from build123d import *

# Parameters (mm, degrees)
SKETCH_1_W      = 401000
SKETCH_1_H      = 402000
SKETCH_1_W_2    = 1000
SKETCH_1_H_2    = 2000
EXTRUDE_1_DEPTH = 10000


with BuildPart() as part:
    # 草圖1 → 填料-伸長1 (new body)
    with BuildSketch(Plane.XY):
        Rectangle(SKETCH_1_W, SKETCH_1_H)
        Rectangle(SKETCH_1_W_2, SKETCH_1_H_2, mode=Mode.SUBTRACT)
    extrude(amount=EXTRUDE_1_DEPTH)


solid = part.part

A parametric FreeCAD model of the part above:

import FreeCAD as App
import Part
import Sketcher

V = App.Vector

doc = App.newDocument("Part")
body = doc.addObject("PartDesign::Body", "Body")

sketch1 = body.newObject("Sketcher::SketchObject", "Sketch")
sketch1.AttachmentSupport = (doc.getObject("XY_Plane"), [""])
sketch1.MapMode = "FlatFace"
sketch1.addGeometry(Part.LineSegment(V(-200500, 201000, 0), V(-200500, -201000, 0)), False)
sketch1.addGeometry(Part.LineSegment(V(-200500, -201000, 0), V(200500, -201000, 0)), False)
sketch1.addGeometry(Part.LineSegment(V(200500, -201000, 0), V(200500, 201000, 0)), False)
sketch1.addGeometry(Part.LineSegment(V(200500, 201000, 0), V(-200500, 201000, 0)), False)
sketch1.addGeometry(Part.LineSegment(V(500, -1000, 0), V(-500, -1000, 0)), False)
sketch1.addGeometry(Part.LineSegment(V(-500, -1000, 0), V(-500, 1000, 0)), False)
sketch1.addGeometry(Part.LineSegment(V(-500, 1000, 0), V(500, 1000, 0)), False)
sketch1.addGeometry(Part.LineSegment(V(500, 1000, 0), V(500, -1000, 0)), False)
sketch1.addConstraint(Sketcher.Constraint("Coincident", 0, 2, 1, 1))
sketch1.addConstraint(Sketcher.Constraint("Coincident", 1, 2, 2, 1))
sketch1.addConstraint(Sketcher.Constraint("Coincident", 2, 2, 3, 1))
sketch1.addConstraint(Sketcher.Constraint("Coincident", 3, 2, 0, 1))
sketch1.addConstraint(Sketcher.Constraint("Coincident", 4, 2, 5, 1))
sketch1.addConstraint(Sketcher.Constraint("Coincident", 5, 2, 6, 1))
sketch1.addConstraint(Sketcher.Constraint("Coincident", 6, 2, 7, 1))
sketch1.addConstraint(Sketcher.Constraint("Coincident", 7, 2, 4, 1))
sketch1.addConstraint(Sketcher.Constraint("Vertical", 0))
sketch1.addConstraint(Sketcher.Constraint("Horizontal", 1))
sketch1.addConstraint(Sketcher.Constraint("Vertical", 2))
sketch1.addConstraint(Sketcher.Constraint("Horizontal", 3))
sketch1.addConstraint(Sketcher.Constraint("Horizontal", 4))
sketch1.addConstraint(Sketcher.Constraint("Vertical", 5))
sketch1.addConstraint(Sketcher.Constraint("Horizontal", 6))
sketch1.addConstraint(Sketcher.Constraint("Vertical", 7))
sketch1.addConstraint(Sketcher.Constraint("Symmetric", 0, 2, 2, 2, -1, 1))
sketch1.addConstraint(Sketcher.Constraint("Symmetric", 4, 2, 6, 2, -1, 1))
sketch1.addConstraint(Sketcher.Constraint("DistanceX", 1, 1, 1, 2, 401000.0))
sketch1.addConstraint(Sketcher.Constraint("DistanceX", 4, 2, 4, 1, 1000.0))
sketch1.addConstraint(Sketcher.Constraint("DistanceY", 0, 2, 0, 1, 402000.0))
sketch1.addConstraint(Sketcher.Constraint("DistanceY", 5, 1, 5, 2, 2000.0))
pad1 = body.newObject("PartDesign::Pad", "Pad")
pad1.Profile = sketch1
pad1.Length = 10000

doc.recompute()
